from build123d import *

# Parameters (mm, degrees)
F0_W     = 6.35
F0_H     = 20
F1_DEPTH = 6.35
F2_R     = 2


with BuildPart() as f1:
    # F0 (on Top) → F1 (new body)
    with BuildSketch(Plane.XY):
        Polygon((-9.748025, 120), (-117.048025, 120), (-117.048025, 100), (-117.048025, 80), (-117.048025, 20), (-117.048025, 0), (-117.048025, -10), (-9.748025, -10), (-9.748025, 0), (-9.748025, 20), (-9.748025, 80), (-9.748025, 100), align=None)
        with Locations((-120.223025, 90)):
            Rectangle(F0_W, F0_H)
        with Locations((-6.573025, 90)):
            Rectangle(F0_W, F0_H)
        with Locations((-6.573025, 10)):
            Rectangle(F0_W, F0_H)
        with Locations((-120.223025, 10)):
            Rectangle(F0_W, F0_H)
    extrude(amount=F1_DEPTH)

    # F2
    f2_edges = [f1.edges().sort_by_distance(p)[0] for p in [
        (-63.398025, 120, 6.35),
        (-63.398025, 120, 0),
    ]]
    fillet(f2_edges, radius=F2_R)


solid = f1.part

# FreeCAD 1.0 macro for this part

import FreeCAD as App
import Part
import Sketcher
from FreeCAD import Vector
Q = App.Units.Quantity


def edges_at(feature, points):
    """Names of the edges that pass closest to the given points."""
    edges = feature.Shape.Edges
    near = lambda p: min(range(len(edges)), key=lambda i: edges[i].distToShape(Part.Vertex(*p))[0])
    return sorted({f"Edge{near(p) + 1}" for p in points})


def add_polygon(sketch, points):
    """Adds a closed chain of lines whose ends are joined by coincident constraints."""
    first, n = sketch.GeometryCount, len(points)
    for a, b in zip(points, points[1:] + points[:1]):
        sketch.addGeometry(Part.LineSegment(App.Vector(*a, 0), App.Vector(*b, 0)), False)
    for i in range(n):
        sketch.addConstraint(Sketcher.Constraint("Coincident", first + i, 2, first + (i + 1) % n, 1))

doc = App.newDocument("Part")
body = doc.addObject("PartDesign::Body", "Body")

# Sketch on XY plane
sketch1 = doc.addObject("Sketcher::SketchObject", "Sketch")
body.addObject(sketch1)
sketch1.AttachmentSupport = (doc.XY_Plane, [""])
sketch1.MapMode = "FlatFace"
add_polygon(sketch1, [(-9.748025, 120), (-117.048025, 120), (-117.048025, 100), (-123.398025, 100), (-123.398025, 80), (-117.048025, 80), (-117.048025, 20), (-123.398025, 20), (-123.398025, 0), (-117.048025, 0), (-117.048025, -10), (-9.748025, -10), (-9.748025, 0), (-3.398025, 0), (-3.398025, 20), (-9.748025, 20), (-9.748025, 80), (-3.398025, 80), (-3.398025, 100), (-9.748025, 100)])  # lines 0-19
sketch1.addConstraint([
    Sketcher.Constraint("Horizontal", 0),
    Sketcher.Constraint("Vertical", 1),
    Sketcher.Constraint("Horizontal", 2),
    Sketcher.Constraint("Vertical", 3),
    Sketcher.Constraint("Horizontal", 4),
    Sketcher.Constraint("Vertical", 5),
    Sketcher.Constraint("Horizontal", 6),
    Sketcher.Constraint("Vertical", 7),
    Sketcher.Constraint("Horizontal", 8),
    Sketcher.Constraint("Vertical", 9),
    Sketcher.Constraint("Horizontal", 10),
    Sketcher.Constraint("Vertical", 11),
    Sketcher.Constraint("Horizontal", 12),
    Sketcher.Constraint("Vertical", 13),
    Sketcher.Constraint("Horizontal", 14),
    Sketcher.Constraint("Vertical", 15),
    Sketcher.Constraint("Horizontal", 16),
    Sketcher.Constraint("Vertical", 17),
    Sketcher.Constraint("Horizontal", 18),
    Sketcher.Constraint("Vertical", 19),
    Sketcher.Constraint("PointOnObject", 7, 2, -1),
    Sketcher.Constraint("PointOnObject", 11, 2, -1),
    Sketcher.Constraint("Horizontal", 6, 2, 13, 2),
    Sketcher.Constraint("Horizontal", 4, 2, 15, 2),
    Sketcher.Constraint("Horizontal", 2, 2, 17, 2),
    Sketcher.Constraint("Vertical", 1, 2, 4, 2),
    Sketcher.Constraint("Vertical", 3, 2, 6, 2),
    Sketcher.Constraint("Vertical", 5, 2, 8, 2),
    Sketcher.Constraint("Vertical", 11, 2, 14, 2),
    Sketcher.Constraint("Vertical", 13, 2, 16, 2),
    Sketcher.Constraint("Vertical", 15, 2, 18, 2),
    Sketcher.Constraint("Equal", 8, 12),
    Sketcher.Constraint("Equal", 1, 3),
    Sketcher.Constraint("Equal", 3, 7),
    Sketcher.Constraint("DistanceY", 1, 2, 1, 1, Q("20 mm")),
    Sketcher.Constraint("DistanceY", 5, 2, 5, 1, Q("60 mm")),
    Sketcher.Constraint("DistanceY", 9, 2, 9, 1, Q("10 mm")),
    Sketcher.Constraint("DistanceX", 0, 2, 0, 1, Q("107.3 mm")),
    Sketcher.Constraint("DistanceX", 2, 2, 2, 1, Q("6.35 mm")),
    Sketcher.Constraint("DistanceX", 0, 2, -1, 1, Q("117.048025 mm")),
])
pad1 = doc.addObject("PartDesign::Pad", "Pad")
body.addObject(pad1)
pad1.Profile = sketch1
pad1.Length = 6.35
doc.recompute()

fillet = doc.addObject("PartDesign::Fillet", "Fillet")
body.addObject(fillet)
fillet.Base = (pad1, edges_at(pad1, [(-63.398, 120, 6.35), (-63.398, 120, 0)]))
fillet.Radius = 2

doc.recompute()
